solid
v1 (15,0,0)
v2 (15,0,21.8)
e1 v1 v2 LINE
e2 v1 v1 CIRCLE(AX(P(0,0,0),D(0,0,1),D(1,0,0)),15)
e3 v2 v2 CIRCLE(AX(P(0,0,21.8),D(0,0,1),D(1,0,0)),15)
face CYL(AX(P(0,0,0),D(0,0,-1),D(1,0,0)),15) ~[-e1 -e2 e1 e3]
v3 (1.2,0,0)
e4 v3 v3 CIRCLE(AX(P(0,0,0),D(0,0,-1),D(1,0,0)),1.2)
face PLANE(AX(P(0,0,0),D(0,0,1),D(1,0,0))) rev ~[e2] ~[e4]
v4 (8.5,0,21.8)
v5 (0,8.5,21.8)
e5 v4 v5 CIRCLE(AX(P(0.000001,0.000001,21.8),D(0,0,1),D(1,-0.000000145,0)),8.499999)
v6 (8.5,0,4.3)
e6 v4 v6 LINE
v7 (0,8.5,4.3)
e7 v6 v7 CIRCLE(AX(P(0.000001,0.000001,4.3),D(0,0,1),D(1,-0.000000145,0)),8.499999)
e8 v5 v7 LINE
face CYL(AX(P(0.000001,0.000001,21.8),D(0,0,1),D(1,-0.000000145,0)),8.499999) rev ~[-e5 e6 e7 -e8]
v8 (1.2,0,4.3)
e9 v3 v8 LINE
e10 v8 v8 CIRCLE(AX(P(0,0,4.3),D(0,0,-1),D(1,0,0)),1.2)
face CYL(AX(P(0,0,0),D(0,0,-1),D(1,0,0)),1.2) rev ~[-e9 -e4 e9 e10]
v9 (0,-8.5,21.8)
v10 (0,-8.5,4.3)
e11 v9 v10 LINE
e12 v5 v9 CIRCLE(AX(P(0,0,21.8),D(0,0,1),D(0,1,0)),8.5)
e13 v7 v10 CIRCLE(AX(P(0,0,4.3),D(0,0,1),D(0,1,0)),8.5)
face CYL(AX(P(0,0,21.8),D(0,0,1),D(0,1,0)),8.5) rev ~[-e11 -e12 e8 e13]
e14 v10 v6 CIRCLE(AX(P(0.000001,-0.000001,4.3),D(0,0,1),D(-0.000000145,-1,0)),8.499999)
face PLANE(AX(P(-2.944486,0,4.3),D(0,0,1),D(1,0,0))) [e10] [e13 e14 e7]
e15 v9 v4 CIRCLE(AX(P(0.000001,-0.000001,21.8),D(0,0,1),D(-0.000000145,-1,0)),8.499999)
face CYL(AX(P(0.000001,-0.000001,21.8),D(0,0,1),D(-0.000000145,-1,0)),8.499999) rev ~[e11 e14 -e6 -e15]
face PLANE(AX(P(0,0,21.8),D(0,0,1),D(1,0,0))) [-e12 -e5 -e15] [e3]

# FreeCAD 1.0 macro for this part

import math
import FreeCAD as App
import Part
import Sketcher
from FreeCAD import Vector

doc = App.newDocument("Part")
body = doc.addObject("PartDesign::Body", "Body")

# Sketch on XY plane
sketch1 = doc.addObject("Sketcher::SketchObject", "Sketch")
body.addObject(sketch1)
sketch1.AttachmentSupport = (doc.XY_Plane, [""])
sketch1.MapMode = "FlatFace"
sketch1.addGeometry(Part.Circle(Vector(0, 0, 0), Vector(0, 0, 1), 15), False)
sketch1.addConstraint([
    Sketcher.Constraint("Coincident", 0, 3, -1, 1),
    Sketcher.Constraint("Diameter", 0, 30.0),
])
pad1 = doc.addObject("PartDesign::Pad", "Pad")
body.addObject(pad1)
pad1.Profile = sketch1
pad1.Length = 21.8

# Sketch on XY plane
sketch2 = doc.addObject("Sketcher::SketchObject", "Sketch001")
body.addObject(sketch2)
sketch2.AttachmentSupport = (doc.XY_Plane, [""])
sketch2.MapMode = "FlatFace"
sketch2.AttachmentOffset = App.Placement(Vector(0, 0, 21.8), App.Rotation())
sketch2.addGeometry([
    Part.ArcOfCircle(Part.Circle(Vector(0, 0, 0), Vector(0, 0, 1), 8), math.radians(90), math.radians(270)),
    Part.ArcOfCircle(Part.Circle(Vector(0, 0, 0), Vector(0, 0, 1), 8), math.radians(-90), math.radians(0)),
    Part.ArcOfCircle(Part.Circle(Vector(0, 0, 0), Vector(0, 0, 1), 8), math.radians(0), math.radians(90)),
], False)
sketch2.addConstraint([
    Sketcher.Constraint("Tangent", 0, 2, 1, 1),
    Sketcher.Constraint("Tangent", 1, 2, 2, 1),
    Sketcher.Constraint("Tangent", 2, 2, 0, 1),
    Sketcher.Constraint("Coincident", 0, 3, -1, 1),
    Sketcher.Constraint("PointOnObject", 0, 2, -2),
    Sketcher.Constraint("PointOnObject", 1, 2, -1),
    Sketcher.Constraint("PointOnObject", 2, 2, -2),
    Sketcher.Constraint("Radius", 0, 8.5),
])
pocket1 = doc.addObject("PartDesign::Pocket", "Pocket")
body.addObject(pocket1)
pocket1.Profile = sketch2
pocket1.Length = 17.5

# Sketch on XY plane
sketch3 = doc.addObject("Sketcher::SketchObject", "Sketch002")
body.addObject(sketch3)
sketch3.AttachmentSupport = (doc.XY_Plane, [""])
sketch3.MapMode = "FlatFace"
sketch3.addGeometry(Part.Circle(Vector(0, 0, 0), Vector(0, 0, 1), 1.2), False)
sketch3.addConstraint([
    Sketcher.Constraint("Coincident", 0, 3, -1, 1),
    Sketcher.Constraint("Diameter", 0, 2.4),
])
pocket2 = doc.addObject("PartDesign::Pocket", "Pocket001")
body.addObject(pocket2)
pocket2.Profile = sketch3
pocket2.Length = 25.4
pocket2.Reversed = True

doc.recompute()
